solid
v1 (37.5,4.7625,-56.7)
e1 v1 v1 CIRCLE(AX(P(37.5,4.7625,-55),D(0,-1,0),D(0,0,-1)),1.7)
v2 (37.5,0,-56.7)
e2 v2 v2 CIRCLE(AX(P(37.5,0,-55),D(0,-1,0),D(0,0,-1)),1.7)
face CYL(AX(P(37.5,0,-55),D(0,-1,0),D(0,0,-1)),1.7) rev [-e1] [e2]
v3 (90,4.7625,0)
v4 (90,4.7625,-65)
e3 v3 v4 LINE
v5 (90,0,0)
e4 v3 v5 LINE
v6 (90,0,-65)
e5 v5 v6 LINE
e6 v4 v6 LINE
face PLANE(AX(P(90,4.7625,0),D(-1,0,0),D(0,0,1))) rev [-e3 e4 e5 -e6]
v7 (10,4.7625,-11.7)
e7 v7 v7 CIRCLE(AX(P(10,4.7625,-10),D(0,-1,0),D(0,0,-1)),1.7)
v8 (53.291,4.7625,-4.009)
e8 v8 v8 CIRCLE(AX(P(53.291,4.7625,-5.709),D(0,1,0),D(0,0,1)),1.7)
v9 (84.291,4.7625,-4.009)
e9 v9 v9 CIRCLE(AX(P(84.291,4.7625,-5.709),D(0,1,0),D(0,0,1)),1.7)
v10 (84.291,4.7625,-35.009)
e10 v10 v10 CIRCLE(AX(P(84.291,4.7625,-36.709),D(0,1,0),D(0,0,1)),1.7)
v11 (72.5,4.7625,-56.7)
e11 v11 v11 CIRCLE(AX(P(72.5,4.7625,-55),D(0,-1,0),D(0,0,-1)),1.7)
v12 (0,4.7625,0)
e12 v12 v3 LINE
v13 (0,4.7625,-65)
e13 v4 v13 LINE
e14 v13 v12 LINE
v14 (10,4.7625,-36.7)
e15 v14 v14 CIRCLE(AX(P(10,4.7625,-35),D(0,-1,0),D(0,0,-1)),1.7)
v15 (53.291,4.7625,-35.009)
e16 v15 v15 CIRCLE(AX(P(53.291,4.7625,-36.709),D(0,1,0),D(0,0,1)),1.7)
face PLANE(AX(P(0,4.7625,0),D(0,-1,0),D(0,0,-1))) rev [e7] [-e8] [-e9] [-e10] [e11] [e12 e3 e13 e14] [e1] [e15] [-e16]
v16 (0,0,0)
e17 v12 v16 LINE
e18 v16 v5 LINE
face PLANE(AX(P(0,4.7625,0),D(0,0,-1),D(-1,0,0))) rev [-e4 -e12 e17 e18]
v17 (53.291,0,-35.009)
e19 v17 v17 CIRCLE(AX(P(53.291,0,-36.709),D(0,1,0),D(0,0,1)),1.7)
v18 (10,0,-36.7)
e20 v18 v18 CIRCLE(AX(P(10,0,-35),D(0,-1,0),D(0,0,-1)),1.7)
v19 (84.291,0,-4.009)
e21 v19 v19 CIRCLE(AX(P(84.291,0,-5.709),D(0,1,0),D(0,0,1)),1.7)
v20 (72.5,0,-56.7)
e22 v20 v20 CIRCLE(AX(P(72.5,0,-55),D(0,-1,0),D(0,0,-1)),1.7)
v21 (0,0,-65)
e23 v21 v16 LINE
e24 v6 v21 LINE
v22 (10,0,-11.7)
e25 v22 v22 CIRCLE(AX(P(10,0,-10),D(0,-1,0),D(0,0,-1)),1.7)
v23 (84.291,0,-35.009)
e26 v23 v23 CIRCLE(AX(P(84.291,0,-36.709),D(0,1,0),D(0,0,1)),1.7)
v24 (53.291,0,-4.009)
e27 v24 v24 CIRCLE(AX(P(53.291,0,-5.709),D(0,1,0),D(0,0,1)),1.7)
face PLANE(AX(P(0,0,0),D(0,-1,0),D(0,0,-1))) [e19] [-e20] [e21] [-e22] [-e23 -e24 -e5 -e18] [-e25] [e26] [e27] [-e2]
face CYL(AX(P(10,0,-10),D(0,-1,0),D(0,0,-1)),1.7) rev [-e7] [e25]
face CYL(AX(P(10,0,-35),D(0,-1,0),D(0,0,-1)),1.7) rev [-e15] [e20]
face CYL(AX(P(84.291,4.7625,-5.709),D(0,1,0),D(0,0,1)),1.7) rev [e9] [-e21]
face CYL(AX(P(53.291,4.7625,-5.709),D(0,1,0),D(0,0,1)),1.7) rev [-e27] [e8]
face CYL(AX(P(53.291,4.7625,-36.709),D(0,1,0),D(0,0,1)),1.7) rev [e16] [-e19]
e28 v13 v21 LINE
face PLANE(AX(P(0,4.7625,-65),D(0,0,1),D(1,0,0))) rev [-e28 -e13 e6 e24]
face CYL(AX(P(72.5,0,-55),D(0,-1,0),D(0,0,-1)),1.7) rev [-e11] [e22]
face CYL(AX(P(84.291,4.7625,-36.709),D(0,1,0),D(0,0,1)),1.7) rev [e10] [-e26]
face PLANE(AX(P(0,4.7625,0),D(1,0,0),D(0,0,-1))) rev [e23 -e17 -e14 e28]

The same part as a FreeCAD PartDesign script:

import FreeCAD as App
import Part
import Sketcher
Q = App.Units.Quantity

doc = App.newDocument("Part")
body = doc.addObject("PartDesign::Body", "Body")

sketch1 = body.newObject("Sketcher::SketchObject", "Sketch")
sketch1.AttachmentSupport = (doc.getObject("XZ_Plane"), [""])
sketch1.MapMode = "FlatFace"
sketch1.addGeometry(Part.LineSegment(App.Vector(0, -65, 0), App.Vector(0, 0, 0)), False)
sketch1.addGeometry(Part.LineSegment(App.Vector(0, 0, 0), App.Vector(90, 0, 0)), False)
sketch1.addGeometry(Part.LineSegment(App.Vector(90, 0, 0), App.Vector(90, -65, 0)), False)
sketch1.addGeometry(Part.LineSegment(App.Vector(90, -65, 0), App.Vector(0, -65, 0)), False)
sketch1.addConstraint(Sketcher.Constraint("Coincident", 0, 2, 1, 1))
sketch1.addConstraint(Sketcher.Constraint("Coincident", 1, 2, 2, 1))
sketch1.addConstraint(Sketcher.Constraint("Coincident", 2, 2, 3, 1))
sketch1.addConstraint(Sketcher.Constraint("Coincident", 3, 2, 0, 1))
sketch1.addConstraint(Sketcher.Constraint("Vertical", 0))
sketch1.addConstraint(Sketcher.Constraint("Horizontal", 1))
sketch1.addConstraint(Sketcher.Constraint("Vertical", 2))
sketch1.addConstraint(Sketcher.Constraint("Horizontal", 3))
sketch1.addConstraint(Sketcher.Constraint("Coincident", 0, 2, -1, 1))
sketch1.addConstraint(Sketcher.Constraint("DistanceX", 1, 1, 1, 2, Q("90 mm")))
sketch1.addConstraint(Sketcher.Constraint("DistanceY", 0, 1, 0, 2, Q("65 mm")))
pad1 = body.newObject("PartDesign::Pad", "Pad")
pad1.Profile = sketch1
pad1.Length = 4.7625
pad1.Reversed = True

sketch2 = body.newObject("Sketcher::SketchObject", "Sketch001")
sketch2.AttachmentSupport = (doc.getObject("XZ_Plane"), [""])
sketch2.MapMode = "FlatFace"
sketch2.AttachmentOffset = App.Placement(App.Vector(0, 0, -4.7625), App.Rotation())
sketch2.addGeometry(Part.Circle(App.Vector(84.291, -5.709, 0), App.Vector(0, 0, 1), 1.7), False)
sketch2.addGeometry(Part.Circle(App.Vector(84.291, -36.709, 0), App.Vector(0, 0, 1), 1.7), False)
sketch2.addGeometry(Part.Circle(App.Vector(53.291, -36.709, 0), App.Vector(0, 0, 1), 1.7), False)
sketch2.addGeometry(Part.Circle(App.Vector(53.291, -5.709, 0), App.Vector(0, 0, 1), 1.7), False)
sketch2.addConstraint(Sketcher.Constraint("Equal", 0, 1))
sketch2.addConstraint(Sketcher.Constraint("Equal", 1, 2))
sketch2.addConstraint(Sketcher.Constraint("Equal", 2, 3))
sketch2.addConstraint(Sketcher.Constraint("Horizontal", 1, 3, 2, 3))
sketch2.addConstraint(Sketcher.Constraint("Horizontal", 0, 3, 3, 3))
sketch2.addConstraint(Sketcher.Constraint("Vertical", 0, 3, 1, 3))
sketch2.addConstraint(Sketcher.Constraint("Vertical", 2, 3, 3, 3))
sketch2.addConstraint(Sketcher.Constraint("Diameter", 0, Q("3.4 mm")))
sketch2.addConstraint(Sketcher.Constraint("DistanceY", 1, 3, 0, 3, Q("31 mm")))
sketch2.addConstraint(Sketcher.Constraint("DistanceX", 2, 3, 1, 3, Q("31 mm")))
sketch2.addConstraint(Sketcher.Constraint("DistanceX", -1, 1, 0, 3, Q("84.291 mm")))
sketch2.addConstraint(Sketcher.Constraint("DistanceY", 0, 3, -1, 1, Q("5.709 mm")))
doc.recompute()
hole = body.newObject("PartDesign::Hole", "Hole")
hole.Profile = sketch2
hole.ThreadType = "None"
hole.Diameter = 3.4
hole.DepthType = "ThroughAll"
hole.Reversed = True

sketch3 = body.newObject("Sketcher::SketchObject", "Sketch002")
sketch3.AttachmentSupport = (doc.getObject("XZ_Plane"), [""])
sketch3.MapMode = "FlatFace"
sketch3.addGeometry(Part.Circle(App.Vector(37.5, -55, 0), App.Vector(0, 0, 1), 1.7), False)
sketch3.addGeometry(Part.Circle(App.Vector(72.5, -55, 0), App.Vector(0, 0, 1), 1.7), False)
sketch3.addGeometry(Part.Circle(App.Vector(10, -35, 0), App.Vector(0, 0, 1), 1.7), False)
sketch3.addGeometry(Part.Circle(App.Vector(10, -10, 0), App.Vector(0, 0, 1), 1.7), False)
sketch3.addConstraint(Sketcher.Constraint("Equal", 0, 1))
sketch3.addConstraint(Sketcher.Constraint("Equal", 1, 2))
sketch3.addConstraint(Sketcher.Constraint("Equal", 2, 3))
sketch3.addConstraint(Sketcher.Constraint("Horizontal", 0, 3, 1, 3))
sketch3.addConstraint(Sketcher.Constraint("Vertical", 2, 3, 3, 3))
sketch3.addConstraint(Sketcher.Constraint("Diameter", 0, Q("3.4 mm")))
sketch3.addConstraint(Sketcher.Constraint("DistanceY", 0, 3, -1, 1, Q("55 mm")))
sketch3.addConstraint(Sketcher.Constraint("DistanceX", -1, 1, 2, 3, Q("10 mm")))
sketch3.addConstraint(Sketcher.Constraint("DistanceY", 2, 3, -1, 1, Q("35 mm")))
sketch3.addConstraint(Sketcher.Constraint("DistanceY", 3, 3, -1, 1, Q("10 mm")))
sketch3.addConstraint(Sketcher.Constraint("DistanceX", 0, 3, 1, 3, Q("35 mm")))
sketch3.addConstraint(Sketcher.Constraint("DistanceX", -1, 1, 0, 3, Q("37.5 mm")))
doc.recompute()
hole2 = body.newObject("PartDesign::Hole", "Hole001")
hole2.Profile = sketch3
hole2.ThreadType = "None"
hole2.Diameter = 3.4
hole2.DepthType = "ThroughAll"

doc.recompute()
